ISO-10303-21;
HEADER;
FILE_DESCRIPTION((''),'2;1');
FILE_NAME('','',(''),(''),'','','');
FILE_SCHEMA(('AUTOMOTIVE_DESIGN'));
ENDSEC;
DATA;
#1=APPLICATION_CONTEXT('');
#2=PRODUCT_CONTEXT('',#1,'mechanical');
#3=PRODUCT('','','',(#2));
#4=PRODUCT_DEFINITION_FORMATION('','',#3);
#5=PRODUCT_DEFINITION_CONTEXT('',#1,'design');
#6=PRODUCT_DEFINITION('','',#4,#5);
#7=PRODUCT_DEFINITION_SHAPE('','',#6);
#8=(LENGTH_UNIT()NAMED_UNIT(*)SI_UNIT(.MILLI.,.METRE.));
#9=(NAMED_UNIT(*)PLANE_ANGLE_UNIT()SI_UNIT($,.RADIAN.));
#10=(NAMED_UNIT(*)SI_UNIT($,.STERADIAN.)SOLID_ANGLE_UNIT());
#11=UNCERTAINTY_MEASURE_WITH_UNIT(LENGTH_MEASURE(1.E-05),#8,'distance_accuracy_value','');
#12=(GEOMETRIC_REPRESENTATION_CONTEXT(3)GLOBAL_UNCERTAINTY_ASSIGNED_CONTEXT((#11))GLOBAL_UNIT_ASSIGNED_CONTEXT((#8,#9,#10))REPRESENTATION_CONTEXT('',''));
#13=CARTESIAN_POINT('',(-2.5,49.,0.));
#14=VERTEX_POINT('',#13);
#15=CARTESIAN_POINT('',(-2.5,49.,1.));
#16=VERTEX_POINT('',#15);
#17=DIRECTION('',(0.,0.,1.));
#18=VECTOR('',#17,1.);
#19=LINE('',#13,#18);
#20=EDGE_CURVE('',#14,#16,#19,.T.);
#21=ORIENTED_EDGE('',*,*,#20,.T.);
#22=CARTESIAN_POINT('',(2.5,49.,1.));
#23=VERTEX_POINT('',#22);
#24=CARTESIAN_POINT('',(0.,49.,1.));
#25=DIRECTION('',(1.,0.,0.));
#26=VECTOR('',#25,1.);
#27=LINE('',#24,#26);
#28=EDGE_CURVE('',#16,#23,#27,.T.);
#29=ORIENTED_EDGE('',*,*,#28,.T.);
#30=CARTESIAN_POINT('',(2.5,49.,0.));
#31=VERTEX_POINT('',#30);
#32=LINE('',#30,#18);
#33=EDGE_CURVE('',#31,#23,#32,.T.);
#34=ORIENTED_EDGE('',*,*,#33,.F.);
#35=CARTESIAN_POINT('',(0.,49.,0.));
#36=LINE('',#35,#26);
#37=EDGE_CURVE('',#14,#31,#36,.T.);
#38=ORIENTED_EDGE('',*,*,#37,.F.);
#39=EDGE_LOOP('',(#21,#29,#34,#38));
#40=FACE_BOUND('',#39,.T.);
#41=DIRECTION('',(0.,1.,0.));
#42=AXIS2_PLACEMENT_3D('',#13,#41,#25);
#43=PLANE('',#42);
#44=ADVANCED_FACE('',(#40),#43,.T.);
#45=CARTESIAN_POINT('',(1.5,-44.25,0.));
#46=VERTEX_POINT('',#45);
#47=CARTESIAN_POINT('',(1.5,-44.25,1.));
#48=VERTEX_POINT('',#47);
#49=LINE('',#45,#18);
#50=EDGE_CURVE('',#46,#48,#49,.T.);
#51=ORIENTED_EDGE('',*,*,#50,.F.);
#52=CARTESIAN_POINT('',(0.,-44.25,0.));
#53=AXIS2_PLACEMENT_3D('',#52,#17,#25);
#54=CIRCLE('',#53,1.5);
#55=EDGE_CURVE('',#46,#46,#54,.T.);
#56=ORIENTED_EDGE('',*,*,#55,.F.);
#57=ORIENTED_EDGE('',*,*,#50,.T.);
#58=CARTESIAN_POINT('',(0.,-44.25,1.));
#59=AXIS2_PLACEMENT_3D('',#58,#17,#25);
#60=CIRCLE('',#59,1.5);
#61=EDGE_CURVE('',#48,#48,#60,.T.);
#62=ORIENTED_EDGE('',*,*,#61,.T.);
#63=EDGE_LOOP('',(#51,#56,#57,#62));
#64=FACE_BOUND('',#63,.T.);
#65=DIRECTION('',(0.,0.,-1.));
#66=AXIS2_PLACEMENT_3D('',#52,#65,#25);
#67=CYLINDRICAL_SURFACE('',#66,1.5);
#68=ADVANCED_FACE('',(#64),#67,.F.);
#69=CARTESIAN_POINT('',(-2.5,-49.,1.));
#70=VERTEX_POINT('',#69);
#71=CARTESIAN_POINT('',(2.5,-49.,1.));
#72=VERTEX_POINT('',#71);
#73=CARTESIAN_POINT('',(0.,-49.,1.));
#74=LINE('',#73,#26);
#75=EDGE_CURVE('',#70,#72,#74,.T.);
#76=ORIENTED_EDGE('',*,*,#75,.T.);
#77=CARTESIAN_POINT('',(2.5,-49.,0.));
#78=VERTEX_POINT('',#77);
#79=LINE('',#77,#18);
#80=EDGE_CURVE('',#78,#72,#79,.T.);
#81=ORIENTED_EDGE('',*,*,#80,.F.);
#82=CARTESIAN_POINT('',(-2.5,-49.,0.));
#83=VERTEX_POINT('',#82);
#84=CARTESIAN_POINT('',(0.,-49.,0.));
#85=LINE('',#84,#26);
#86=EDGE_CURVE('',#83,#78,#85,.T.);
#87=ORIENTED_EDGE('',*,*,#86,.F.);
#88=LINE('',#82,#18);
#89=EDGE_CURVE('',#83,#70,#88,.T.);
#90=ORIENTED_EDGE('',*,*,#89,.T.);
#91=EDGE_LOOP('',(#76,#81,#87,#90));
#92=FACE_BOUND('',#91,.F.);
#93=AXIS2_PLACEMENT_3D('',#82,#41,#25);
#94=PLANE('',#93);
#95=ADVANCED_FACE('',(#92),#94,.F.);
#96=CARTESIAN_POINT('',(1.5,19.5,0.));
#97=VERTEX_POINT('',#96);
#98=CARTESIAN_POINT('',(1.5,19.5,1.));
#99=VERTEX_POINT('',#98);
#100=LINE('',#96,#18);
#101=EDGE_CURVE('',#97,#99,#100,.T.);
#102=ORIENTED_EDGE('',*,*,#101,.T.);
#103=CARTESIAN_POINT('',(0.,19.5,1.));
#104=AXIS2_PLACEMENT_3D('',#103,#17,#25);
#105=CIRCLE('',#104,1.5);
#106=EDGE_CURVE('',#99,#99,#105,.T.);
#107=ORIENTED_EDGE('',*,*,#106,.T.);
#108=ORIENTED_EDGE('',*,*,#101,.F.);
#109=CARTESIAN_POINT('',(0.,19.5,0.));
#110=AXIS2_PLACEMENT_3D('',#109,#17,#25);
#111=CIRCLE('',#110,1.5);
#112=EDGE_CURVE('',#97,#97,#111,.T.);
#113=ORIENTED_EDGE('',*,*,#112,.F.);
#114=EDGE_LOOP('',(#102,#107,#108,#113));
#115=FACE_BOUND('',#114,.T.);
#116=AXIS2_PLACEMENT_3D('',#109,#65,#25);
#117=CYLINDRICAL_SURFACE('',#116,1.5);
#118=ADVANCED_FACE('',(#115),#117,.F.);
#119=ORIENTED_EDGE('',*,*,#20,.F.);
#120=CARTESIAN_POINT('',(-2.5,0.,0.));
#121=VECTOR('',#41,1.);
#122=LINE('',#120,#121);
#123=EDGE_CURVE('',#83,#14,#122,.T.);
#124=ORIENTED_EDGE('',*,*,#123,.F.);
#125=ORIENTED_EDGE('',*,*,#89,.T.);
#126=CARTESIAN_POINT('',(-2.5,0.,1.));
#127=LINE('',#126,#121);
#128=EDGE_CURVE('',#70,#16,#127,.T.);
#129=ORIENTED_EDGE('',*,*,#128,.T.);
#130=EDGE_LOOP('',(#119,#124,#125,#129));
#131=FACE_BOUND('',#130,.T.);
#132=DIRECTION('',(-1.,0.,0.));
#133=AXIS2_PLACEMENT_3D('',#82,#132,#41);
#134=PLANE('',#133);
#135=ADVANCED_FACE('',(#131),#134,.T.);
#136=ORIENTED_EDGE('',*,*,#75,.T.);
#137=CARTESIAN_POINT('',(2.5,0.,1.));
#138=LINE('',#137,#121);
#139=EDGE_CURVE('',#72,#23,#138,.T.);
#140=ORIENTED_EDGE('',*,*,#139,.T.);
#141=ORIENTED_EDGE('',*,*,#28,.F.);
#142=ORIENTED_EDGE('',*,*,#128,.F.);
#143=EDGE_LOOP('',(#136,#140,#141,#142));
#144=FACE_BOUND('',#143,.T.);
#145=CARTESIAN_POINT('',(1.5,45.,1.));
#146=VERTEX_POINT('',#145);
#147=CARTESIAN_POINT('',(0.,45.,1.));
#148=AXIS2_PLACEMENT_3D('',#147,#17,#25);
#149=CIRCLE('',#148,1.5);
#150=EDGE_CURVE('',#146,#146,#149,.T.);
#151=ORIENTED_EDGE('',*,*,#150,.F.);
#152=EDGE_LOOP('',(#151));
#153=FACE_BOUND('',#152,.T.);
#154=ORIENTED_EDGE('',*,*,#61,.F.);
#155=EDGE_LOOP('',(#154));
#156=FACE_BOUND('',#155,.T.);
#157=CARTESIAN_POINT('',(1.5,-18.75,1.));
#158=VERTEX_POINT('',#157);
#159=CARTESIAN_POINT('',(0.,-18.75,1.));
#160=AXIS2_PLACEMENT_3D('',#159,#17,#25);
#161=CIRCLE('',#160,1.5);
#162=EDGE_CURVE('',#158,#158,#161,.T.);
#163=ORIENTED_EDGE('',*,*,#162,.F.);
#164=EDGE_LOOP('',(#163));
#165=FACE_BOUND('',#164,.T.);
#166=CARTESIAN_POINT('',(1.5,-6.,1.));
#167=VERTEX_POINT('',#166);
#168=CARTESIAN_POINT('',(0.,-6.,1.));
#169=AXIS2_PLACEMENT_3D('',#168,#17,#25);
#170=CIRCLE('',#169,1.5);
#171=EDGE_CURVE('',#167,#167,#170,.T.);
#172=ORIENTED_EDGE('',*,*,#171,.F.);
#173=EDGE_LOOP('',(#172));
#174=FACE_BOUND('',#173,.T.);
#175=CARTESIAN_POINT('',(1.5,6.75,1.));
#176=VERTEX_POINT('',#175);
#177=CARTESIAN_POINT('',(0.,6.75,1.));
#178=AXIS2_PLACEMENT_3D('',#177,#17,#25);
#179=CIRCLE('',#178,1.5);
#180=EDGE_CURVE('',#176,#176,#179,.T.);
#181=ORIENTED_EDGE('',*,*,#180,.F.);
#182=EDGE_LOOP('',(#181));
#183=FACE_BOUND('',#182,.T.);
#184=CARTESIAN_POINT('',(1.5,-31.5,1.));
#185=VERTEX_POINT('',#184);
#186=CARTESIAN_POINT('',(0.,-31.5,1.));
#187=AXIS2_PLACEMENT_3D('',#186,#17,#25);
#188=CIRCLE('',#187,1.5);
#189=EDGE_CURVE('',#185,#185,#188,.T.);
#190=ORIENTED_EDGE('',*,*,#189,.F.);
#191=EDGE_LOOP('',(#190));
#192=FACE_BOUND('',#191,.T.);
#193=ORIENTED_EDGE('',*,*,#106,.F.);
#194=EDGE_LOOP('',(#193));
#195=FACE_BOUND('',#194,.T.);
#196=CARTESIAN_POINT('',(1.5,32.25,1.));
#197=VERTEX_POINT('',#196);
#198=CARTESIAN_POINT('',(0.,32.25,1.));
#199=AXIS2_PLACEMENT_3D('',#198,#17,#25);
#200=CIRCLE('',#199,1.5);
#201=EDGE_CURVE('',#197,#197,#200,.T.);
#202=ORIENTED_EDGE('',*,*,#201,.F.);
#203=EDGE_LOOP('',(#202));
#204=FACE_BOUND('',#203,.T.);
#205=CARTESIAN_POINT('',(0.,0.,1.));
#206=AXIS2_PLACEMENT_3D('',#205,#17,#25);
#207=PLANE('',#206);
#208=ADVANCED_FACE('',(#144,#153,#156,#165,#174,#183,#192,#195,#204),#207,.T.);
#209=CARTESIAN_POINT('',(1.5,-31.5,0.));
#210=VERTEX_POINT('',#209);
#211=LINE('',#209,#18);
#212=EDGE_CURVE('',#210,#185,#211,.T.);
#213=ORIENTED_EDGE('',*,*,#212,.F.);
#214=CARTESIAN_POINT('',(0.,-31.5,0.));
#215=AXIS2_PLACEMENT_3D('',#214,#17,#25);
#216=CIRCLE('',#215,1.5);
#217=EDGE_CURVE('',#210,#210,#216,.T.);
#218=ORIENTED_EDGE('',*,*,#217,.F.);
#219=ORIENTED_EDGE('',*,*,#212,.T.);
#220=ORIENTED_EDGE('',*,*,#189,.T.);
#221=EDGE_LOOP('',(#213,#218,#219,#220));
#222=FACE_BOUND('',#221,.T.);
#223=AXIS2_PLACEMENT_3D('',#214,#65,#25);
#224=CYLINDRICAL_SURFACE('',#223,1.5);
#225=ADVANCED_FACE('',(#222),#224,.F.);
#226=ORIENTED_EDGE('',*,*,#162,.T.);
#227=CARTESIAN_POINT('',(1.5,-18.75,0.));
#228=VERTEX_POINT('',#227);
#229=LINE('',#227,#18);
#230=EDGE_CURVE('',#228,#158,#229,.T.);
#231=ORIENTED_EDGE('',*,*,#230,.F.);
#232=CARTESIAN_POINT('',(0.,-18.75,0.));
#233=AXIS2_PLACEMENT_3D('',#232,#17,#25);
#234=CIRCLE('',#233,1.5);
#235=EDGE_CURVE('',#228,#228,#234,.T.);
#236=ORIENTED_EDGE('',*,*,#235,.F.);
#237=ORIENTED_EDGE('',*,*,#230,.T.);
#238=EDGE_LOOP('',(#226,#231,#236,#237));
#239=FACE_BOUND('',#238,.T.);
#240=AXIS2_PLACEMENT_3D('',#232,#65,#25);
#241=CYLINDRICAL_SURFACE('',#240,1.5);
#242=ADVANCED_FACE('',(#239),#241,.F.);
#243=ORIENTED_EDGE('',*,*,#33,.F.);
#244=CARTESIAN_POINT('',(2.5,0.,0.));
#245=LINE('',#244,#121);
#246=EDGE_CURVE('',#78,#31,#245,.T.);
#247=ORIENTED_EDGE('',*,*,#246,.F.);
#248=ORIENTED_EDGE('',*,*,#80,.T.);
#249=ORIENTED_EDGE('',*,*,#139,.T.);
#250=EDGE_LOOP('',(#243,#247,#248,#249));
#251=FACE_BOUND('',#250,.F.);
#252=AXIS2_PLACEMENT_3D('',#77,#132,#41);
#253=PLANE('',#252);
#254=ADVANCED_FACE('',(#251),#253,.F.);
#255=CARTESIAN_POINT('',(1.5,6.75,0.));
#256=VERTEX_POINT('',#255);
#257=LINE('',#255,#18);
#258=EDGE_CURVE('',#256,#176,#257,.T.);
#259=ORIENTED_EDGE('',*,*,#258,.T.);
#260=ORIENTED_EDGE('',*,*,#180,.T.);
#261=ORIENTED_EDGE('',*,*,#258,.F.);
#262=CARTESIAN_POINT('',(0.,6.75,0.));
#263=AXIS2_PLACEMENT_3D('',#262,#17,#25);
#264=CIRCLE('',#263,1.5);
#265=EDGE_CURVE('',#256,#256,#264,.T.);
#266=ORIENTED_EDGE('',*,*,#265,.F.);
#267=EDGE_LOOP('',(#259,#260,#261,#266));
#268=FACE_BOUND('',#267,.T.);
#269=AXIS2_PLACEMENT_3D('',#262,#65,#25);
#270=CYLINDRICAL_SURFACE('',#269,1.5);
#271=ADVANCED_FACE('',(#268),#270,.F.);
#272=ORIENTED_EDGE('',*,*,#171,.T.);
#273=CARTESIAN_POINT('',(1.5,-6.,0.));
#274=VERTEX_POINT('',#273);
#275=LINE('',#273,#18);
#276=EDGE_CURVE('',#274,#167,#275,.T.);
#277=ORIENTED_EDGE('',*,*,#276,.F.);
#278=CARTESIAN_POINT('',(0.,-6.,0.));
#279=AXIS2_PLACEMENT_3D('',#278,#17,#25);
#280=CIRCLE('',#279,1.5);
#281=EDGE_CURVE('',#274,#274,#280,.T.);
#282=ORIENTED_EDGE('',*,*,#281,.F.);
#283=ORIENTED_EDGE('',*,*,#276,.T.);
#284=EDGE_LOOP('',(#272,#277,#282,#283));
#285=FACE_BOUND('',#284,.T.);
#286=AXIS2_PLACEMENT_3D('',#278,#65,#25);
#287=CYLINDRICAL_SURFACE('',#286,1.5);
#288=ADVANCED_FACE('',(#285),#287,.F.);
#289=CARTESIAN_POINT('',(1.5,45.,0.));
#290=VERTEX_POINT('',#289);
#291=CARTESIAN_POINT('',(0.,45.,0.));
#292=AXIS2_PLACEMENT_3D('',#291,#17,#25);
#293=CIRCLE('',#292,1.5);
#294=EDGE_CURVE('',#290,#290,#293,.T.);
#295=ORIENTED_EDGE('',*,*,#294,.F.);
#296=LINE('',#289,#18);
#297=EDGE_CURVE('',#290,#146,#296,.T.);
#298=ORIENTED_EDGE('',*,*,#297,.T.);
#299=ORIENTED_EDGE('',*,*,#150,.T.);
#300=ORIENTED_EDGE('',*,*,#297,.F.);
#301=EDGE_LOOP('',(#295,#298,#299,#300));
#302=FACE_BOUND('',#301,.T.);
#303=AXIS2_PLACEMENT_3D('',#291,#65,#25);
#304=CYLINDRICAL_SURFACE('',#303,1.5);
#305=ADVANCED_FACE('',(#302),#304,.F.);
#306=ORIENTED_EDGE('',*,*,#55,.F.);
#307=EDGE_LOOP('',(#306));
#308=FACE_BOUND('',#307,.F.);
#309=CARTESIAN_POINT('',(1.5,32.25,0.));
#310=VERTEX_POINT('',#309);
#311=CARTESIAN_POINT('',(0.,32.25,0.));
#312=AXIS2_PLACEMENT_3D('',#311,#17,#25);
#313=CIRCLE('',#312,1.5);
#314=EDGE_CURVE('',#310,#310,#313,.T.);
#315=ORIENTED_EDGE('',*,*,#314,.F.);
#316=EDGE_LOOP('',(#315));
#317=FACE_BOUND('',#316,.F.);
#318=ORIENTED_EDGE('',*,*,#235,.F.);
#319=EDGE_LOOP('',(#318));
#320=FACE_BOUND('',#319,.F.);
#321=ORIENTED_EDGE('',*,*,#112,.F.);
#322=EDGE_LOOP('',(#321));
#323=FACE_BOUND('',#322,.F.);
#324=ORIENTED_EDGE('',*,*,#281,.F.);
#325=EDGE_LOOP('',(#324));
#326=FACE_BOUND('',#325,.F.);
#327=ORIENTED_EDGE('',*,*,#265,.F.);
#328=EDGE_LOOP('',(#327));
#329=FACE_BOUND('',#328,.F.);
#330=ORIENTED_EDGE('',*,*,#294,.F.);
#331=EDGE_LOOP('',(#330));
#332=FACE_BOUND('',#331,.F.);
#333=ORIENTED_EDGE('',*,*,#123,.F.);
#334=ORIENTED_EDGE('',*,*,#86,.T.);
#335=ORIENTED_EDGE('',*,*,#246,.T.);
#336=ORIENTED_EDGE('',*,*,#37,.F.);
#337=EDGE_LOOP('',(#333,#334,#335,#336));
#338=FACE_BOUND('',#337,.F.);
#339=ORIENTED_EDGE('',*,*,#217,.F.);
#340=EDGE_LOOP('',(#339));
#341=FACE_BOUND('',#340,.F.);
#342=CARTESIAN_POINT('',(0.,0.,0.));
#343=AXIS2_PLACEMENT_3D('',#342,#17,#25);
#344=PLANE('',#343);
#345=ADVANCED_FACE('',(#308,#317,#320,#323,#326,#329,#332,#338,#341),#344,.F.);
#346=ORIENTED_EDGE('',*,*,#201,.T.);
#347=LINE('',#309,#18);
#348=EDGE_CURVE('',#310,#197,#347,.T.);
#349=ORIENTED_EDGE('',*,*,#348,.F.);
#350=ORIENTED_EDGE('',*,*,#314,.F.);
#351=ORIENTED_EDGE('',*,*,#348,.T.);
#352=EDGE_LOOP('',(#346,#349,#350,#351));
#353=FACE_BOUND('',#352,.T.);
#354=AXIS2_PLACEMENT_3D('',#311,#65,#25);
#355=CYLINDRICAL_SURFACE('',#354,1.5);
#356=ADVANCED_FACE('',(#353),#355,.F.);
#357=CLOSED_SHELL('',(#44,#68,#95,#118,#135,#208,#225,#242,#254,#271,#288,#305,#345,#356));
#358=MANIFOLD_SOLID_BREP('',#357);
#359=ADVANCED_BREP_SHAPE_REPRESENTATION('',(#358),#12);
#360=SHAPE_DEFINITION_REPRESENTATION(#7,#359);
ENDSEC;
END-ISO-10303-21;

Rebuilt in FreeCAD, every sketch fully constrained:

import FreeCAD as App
import Part
import Sketcher
from FreeCAD import Vector


def add_polygon(sketch, points):
    """Adds a closed chain of lines whose ends are joined by coincident constraints."""
    first, n = sketch.GeometryCount, len(points)
    for a, b in zip(points, points[1:] + points[:1]):
        sketch.addGeometry(Part.LineSegment(App.Vector(*a, 0), App.Vector(*b, 0)), False)
    for i in range(n):
        sketch.addConstraint(Sketcher.Constraint("Coincident", first + i, 2, first + (i + 1) % n, 1))

doc = App.newDocument("Part")
body = doc.addObject("PartDesign::Body", "Body")

sketch1 = body.newObject("Sketcher::SketchObject", "Sketch")
sketch1.AttachmentSupport = (doc.getObject("XY_Plane"), [""])
sketch1.MapMode = "FlatFace"
add_polygon(sketch1, [(-2.5, 49), (-2.5, -49), (2.5, -49), (2.5, 49)])
sketch1.addGeometry(Part.Circle(Vector(0, -44.25, 0), Vector(0, 0, 1), 1.5), False)
sketch1.addGeometry(Part.Circle(Vector(0, -31.5, 0), Vector(0, 0, 1), 1.5), False)
sketch1.addGeometry(Part.Circle(Vector(0, -18.75, 0), Vector(0, 0, 1), 1.5), False)
sketch1.addGeometry(Part.Circle(Vector(0, -6, 0), Vector(0, 0, 1), 1.5), False)
sketch1.addGeometry(Part.Circle(Vector(0, 6.75, 0), Vector(0, 0, 1), 1.5), False)
sketch1.addGeometry(Part.Circle(Vector(0, 19.5, 0), Vector(0, 0, 1), 1.5), False)
sketch1.addGeometry(Part.Circle(Vector(0, 32.25, 0), Vector(0, 0, 1), 1.5), False)
sketch1.addGeometry(Part.Circle(Vector(0, 45, 0), Vector(0, 0, 1), 1.5), False)
sketch1.addConstraint([
    Sketcher.Constraint("Vertical", 0),
    Sketcher.Constraint("Horizontal", 1),
    Sketcher.Constraint("Vertical", 2),
    Sketcher.Constraint("Horizontal", 3),
    Sketcher.Constraint("Equal", 4, 5),
    Sketcher.Constraint("Equal", 5, 6),
    Sketcher.Constraint("Equal", 6, 7),
    Sketcher.Constraint("Equal", 7, 8),
    Sketcher.Constraint("Equal", 8, 9),
    Sketcher.Constraint("Equal", 9, 10),
    Sketcher.Constraint("Equal", 10, 11),
    Sketcher.Constraint("Symmetric", 0, 2, 2, 2, -1, 1),
    Sketcher.Constraint("PointOnObject", 4, 3, -2),
    Sketcher.Constraint("PointOnObject", 5, 3, -2),
    Sketcher.Constraint("PointOnObject", 6, 3, -2),
    Sketcher.Constraint("PointOnObject", 7, 3, -2),
    Sketcher.Constraint("PointOnObject", 8, 3, -2),
    Sketcher.Constraint("PointOnObject", 9, 3, -2),
    Sketcher.Constraint("PointOnObject", 10, 3, -2),
    Sketcher.Constraint("PointOnObject", 11, 3, -2),
    Sketcher.Constraint("Diameter", 4, 3.0),
    Sketcher.Constraint("DistanceX", 1, 1, 1, 2, 5.0),
    Sketcher.Constraint("DistanceY", 0, 2, 0, 1, 98.0),
    Sketcher.Constraint("DistanceY", 7, 3, -1, 1, 6.0),
    Sketcher.Constraint("DistanceY", -1, 1, 11, 3, 45.0),
    Sketcher.Constraint("DistanceY", 4, 3, 8, 3, 51.0),
    Sketcher.Constraint("DistanceY", 5, 3, 9, 3, 51.0),
    Sketcher.Constraint("DistanceY", 6, 3, 10, 3, 51.0),
    Sketcher.Constraint("DistanceY", 5, 3, -1, 1, 31.5),
    Sketcher.Constraint("DistanceY", 4, 3, 6, 3, 25.5),
    Sketcher.Constraint("DistanceY", 4, 3, -1, 1, 44.25),
])
pad1 = body.newObject("PartDesign::Pad", "Pad")
pad1.Profile = sketch1
pad1.Length = 1

doc.recompute()
